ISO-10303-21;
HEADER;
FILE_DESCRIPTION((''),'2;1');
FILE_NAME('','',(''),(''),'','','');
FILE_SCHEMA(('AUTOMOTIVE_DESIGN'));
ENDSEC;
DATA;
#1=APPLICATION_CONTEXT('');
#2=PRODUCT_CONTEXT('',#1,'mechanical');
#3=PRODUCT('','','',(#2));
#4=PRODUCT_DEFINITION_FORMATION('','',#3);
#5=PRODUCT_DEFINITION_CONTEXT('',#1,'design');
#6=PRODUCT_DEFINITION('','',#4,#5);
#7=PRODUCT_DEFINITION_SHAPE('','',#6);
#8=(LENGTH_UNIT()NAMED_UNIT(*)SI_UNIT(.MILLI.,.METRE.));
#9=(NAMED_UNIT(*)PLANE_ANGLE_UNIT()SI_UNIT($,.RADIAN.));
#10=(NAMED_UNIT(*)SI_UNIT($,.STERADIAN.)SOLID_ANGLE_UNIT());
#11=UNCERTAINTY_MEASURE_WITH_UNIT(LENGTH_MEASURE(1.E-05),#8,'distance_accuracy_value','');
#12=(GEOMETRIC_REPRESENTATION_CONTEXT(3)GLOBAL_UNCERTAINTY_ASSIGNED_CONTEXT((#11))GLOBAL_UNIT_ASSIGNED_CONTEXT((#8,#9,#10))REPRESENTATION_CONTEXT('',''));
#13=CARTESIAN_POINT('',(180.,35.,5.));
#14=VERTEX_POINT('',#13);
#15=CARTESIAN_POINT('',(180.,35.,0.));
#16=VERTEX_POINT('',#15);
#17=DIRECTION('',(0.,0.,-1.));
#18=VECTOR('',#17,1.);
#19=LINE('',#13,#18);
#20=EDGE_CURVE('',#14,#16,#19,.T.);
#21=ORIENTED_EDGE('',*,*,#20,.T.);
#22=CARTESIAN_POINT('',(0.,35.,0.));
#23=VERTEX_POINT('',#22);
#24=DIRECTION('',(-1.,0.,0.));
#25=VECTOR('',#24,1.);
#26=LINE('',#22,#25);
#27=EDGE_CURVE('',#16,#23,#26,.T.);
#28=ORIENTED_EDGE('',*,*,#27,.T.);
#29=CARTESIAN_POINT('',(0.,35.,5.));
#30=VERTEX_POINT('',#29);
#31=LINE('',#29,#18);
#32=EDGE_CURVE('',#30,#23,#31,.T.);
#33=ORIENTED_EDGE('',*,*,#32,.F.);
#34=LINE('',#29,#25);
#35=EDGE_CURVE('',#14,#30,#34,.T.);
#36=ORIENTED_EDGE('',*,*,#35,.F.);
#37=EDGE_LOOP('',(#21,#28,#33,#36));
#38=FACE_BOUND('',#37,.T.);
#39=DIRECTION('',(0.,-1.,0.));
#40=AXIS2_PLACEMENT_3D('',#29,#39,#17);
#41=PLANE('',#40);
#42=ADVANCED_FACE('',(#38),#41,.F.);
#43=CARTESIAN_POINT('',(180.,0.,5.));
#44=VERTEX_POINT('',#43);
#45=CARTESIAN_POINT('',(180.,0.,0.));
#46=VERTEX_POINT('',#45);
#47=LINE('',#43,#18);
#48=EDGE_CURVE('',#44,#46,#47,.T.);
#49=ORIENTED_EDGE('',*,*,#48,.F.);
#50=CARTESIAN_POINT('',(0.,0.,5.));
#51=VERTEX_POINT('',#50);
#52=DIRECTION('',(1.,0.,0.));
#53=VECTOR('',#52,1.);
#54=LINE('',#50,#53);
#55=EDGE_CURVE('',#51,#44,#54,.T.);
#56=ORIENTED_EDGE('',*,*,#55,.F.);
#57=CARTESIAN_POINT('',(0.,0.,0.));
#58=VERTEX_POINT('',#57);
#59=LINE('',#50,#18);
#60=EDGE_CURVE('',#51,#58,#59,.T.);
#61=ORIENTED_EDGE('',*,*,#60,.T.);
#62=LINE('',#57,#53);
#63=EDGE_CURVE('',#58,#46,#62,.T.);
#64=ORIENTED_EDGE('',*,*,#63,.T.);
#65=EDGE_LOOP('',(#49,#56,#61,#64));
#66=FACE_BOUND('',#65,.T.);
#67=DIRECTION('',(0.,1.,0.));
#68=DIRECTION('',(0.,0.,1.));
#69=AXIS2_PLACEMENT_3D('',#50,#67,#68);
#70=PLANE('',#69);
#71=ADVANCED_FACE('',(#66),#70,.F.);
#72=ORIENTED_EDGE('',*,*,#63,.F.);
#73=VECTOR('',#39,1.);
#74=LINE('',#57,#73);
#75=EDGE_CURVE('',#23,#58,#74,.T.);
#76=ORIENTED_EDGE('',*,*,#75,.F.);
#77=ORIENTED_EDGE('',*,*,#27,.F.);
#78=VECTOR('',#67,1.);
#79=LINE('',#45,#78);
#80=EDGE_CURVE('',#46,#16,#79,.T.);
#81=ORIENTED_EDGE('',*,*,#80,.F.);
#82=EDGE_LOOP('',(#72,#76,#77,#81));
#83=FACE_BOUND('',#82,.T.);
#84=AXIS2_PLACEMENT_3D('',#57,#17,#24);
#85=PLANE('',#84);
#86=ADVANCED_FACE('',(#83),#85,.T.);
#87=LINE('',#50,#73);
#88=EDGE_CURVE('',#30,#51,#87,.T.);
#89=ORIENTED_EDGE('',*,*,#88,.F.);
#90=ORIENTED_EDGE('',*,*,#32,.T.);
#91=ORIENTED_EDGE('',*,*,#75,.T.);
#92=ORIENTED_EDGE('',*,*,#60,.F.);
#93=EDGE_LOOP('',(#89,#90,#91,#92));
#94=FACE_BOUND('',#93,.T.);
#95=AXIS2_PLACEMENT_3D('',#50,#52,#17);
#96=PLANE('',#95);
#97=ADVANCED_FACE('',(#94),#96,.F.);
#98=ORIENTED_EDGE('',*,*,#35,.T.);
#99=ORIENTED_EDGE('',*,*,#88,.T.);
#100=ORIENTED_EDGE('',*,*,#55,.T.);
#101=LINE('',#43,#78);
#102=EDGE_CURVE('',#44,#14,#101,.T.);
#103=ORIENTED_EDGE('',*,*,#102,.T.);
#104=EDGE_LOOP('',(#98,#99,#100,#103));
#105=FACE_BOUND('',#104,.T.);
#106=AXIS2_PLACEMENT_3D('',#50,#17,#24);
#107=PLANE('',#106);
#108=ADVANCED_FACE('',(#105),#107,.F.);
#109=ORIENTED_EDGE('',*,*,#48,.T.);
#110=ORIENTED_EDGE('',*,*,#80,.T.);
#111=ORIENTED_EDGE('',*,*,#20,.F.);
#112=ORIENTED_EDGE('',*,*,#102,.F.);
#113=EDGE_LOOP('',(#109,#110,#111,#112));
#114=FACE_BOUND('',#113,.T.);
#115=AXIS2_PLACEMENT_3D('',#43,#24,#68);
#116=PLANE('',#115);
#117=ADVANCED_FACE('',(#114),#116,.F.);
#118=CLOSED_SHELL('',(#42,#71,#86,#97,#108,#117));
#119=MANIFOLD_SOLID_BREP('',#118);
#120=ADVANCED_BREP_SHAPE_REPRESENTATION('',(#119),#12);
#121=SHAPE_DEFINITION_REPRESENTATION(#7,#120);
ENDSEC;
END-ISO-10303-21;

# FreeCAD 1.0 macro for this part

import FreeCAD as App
import Part
import Sketcher
from FreeCAD import Vector

doc = App.newDocument("Part")
params = doc.addObject("Spreadsheet::Sheet", "Params")
for row, (alias, value) in enumerate([
    ("sketch1_width", "180 mm"),
    ("sketch1_height", "35 mm"),
    ("pad1_length", "5 mm"),
], start=1):
    params.set(f"A{row}", alias)
    params.set(f"B{row}", "=" + value)
    params.setAlias(f"B{row}", alias)

body = doc.addObject("PartDesign::Body", "Body")

# Sketch on XY plane
sketch1 = body.newObject("Sketcher::SketchObject", "Sketch")
sketch1.AttachmentSupport = (doc.getObject("XY_Plane"), [""])
sketch1.MapMode = "FlatFace"
sketch1.addGeometry([
    Part.LineSegment(Vector(0, 35, 0), Vector(0, 0, 0)),
    Part.LineSegment(Vector(0, 0, 0), Vector(180, 0, 0)),
    Part.LineSegment(Vector(180, 0, 0), Vector(180, 35, 0)),
    Part.LineSegment(Vector(180, 35, 0), Vector(0, 35, 0)),
], False)
sketch1.addConstraint([
    Sketcher.Constraint("Coincident", 0, 2, 1, 1),
    Sketcher.Constraint("Coincident", 1, 2, 2, 1),
    Sketcher.Constraint("Coincident", 2, 2, 3, 1),
    Sketcher.Constraint("Coincident", 3, 2, 0, 1),
    Sketcher.Constraint("Vertical", 0),
    Sketcher.Constraint("Horizontal", 1),
    Sketcher.Constraint("Vertical", 2),
    Sketcher.Constraint("Horizontal", 3),
    Sketcher.Constraint("Coincident", 0, 2, -1, 1),
    Sketcher.Constraint("DistanceX", 1, 1, 1, 2, 180.0),
    Sketcher.Constraint("DistanceY", 0, 2, 0, 1, 35.0),
])
sketch1.setExpression("Constraints[9]", "Params.sketch1_width")
sketch1.setExpression("Constraints[10]", "Params.sketch1_height")
pad1 = body.newObject("PartDesign::Pad", "Pad")
pad1.Profile = sketch1
pad1.setExpression("Length", "Params.pad1_length")

doc.recompute()
